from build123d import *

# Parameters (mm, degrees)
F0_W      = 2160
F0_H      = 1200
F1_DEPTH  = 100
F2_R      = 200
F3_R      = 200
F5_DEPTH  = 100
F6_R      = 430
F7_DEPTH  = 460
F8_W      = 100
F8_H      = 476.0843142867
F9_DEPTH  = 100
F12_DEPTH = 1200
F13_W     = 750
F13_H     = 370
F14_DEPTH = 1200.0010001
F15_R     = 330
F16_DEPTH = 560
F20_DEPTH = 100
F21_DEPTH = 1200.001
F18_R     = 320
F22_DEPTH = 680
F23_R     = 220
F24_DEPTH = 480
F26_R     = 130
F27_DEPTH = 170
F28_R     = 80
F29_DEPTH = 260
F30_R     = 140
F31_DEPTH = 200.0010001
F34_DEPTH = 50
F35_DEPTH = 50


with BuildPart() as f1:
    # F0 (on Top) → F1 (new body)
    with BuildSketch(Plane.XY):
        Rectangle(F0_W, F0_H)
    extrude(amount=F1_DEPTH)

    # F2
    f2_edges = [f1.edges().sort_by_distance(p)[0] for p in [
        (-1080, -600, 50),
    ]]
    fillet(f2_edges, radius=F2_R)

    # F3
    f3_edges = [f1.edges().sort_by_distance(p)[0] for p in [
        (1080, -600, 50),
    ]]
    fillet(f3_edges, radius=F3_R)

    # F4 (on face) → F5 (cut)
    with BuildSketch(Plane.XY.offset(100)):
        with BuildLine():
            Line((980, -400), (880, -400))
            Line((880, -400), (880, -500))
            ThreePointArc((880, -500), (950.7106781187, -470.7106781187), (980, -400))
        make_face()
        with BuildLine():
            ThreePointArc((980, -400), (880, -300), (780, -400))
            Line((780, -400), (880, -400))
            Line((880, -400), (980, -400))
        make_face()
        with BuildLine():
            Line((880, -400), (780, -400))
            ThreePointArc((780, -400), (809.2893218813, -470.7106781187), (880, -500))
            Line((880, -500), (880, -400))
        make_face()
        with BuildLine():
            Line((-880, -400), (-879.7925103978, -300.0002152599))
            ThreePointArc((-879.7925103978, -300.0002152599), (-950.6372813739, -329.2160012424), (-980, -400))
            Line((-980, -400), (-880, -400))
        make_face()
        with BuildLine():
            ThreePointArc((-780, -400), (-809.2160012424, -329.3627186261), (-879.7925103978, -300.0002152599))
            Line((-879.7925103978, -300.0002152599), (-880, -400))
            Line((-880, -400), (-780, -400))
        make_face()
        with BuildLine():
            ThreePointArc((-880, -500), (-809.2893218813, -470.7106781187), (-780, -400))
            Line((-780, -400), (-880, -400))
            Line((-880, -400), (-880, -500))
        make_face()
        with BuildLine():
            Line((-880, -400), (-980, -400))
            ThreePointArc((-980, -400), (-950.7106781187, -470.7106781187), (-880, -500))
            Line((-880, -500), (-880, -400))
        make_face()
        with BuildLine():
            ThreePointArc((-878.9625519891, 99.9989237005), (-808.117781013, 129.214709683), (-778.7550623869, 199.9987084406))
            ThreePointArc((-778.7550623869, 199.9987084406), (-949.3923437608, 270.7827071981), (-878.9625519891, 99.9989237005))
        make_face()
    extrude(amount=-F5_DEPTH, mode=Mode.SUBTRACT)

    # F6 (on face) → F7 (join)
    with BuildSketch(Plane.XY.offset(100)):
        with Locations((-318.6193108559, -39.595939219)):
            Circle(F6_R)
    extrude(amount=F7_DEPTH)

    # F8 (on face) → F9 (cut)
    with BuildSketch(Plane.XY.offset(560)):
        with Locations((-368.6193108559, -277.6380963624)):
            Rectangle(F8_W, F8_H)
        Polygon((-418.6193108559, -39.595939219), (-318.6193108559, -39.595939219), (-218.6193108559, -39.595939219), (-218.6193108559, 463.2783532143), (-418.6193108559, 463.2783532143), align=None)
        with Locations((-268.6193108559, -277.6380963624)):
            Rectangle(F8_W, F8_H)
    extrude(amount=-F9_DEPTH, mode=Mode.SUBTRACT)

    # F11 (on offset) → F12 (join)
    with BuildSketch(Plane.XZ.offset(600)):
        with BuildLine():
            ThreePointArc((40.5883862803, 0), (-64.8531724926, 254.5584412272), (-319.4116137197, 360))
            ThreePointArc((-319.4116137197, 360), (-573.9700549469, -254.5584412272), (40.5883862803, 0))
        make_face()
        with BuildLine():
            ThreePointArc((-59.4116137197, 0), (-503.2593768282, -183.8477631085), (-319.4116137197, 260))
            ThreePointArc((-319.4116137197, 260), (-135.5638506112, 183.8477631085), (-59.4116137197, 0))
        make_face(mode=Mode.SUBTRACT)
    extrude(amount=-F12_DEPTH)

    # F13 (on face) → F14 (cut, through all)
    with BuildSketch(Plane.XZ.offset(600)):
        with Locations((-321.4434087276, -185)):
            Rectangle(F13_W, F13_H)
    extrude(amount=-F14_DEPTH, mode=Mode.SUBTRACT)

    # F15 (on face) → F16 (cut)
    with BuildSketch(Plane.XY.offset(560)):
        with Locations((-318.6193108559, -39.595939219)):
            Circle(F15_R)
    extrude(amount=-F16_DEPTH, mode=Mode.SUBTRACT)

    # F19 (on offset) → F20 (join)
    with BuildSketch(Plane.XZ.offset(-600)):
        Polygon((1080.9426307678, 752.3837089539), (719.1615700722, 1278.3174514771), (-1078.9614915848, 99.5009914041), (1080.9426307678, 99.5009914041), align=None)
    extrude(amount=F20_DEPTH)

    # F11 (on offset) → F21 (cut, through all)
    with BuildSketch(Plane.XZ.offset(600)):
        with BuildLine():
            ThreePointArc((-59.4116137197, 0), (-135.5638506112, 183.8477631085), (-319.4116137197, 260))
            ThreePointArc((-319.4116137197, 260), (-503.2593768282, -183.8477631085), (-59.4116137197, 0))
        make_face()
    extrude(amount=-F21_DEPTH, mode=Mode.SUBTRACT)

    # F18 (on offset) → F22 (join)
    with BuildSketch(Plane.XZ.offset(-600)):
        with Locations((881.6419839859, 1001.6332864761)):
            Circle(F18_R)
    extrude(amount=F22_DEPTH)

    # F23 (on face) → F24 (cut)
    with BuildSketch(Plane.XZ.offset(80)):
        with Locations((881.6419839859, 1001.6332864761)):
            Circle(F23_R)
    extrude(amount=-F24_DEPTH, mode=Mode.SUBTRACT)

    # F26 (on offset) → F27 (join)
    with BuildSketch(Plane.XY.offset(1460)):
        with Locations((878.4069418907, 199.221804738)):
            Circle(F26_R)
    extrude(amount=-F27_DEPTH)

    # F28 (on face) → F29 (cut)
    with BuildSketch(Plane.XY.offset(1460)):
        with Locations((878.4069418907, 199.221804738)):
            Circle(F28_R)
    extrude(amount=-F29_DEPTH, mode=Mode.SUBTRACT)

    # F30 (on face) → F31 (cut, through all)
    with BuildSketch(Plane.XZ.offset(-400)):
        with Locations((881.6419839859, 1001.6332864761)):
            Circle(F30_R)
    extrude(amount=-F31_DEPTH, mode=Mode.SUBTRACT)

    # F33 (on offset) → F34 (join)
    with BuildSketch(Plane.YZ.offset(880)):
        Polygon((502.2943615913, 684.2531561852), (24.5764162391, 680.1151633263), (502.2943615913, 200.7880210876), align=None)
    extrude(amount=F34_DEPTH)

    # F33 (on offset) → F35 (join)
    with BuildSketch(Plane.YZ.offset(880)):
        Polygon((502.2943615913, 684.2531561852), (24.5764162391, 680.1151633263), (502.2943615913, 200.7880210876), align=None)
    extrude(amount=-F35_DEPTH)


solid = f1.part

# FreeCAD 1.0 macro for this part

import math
import FreeCAD as App
import Part
import Sketcher
from FreeCAD import Vector
Q = App.Units.Quantity


def edges_at(feature, points):
    """Names of the edges that pass closest to the given points."""
    edges = feature.Shape.Edges
    near = lambda p: min(range(len(edges)), key=lambda i: edges[i].distToShape(Part.Vertex(*p))[0])
    return sorted({f"Edge{near(p) + 1}" for p in points})


def add_polygon(sketch, points):
    """Adds a closed chain of lines whose ends are joined by coincident constraints."""
    first, n = sketch.GeometryCount, len(points)
    for a, b in zip(points, points[1:] + points[:1]):
        sketch.addGeometry(Part.LineSegment(App.Vector(*a, 0), App.Vector(*b, 0)), False)
    for i in range(n):
        sketch.addConstraint(Sketcher.Constraint("Coincident", first + i, 2, first + (i + 1) % n, 1))

doc = App.newDocument("Part")
body = doc.addObject("PartDesign::Body", "Body")

# Sketch on XY plane
sketch1 = doc.addObject("Sketcher::SketchObject", "Sketch")
body.addObject(sketch1)
sketch1.AttachmentSupport = (doc.XY_Plane, [""])
sketch1.MapMode = "FlatFace"
add_polygon(sketch1, [(-1080, 600), (-1080, -600), (1080, -600), (1080, 600)])  # lines 0-3
sketch1.addConstraint(Sketcher.Constraint("Vertical", 0))
sketch1.addConstraint(Sketcher.Constraint("Horizontal", 1))
sketch1.addConstraint(Sketcher.Constraint("Vertical", 2))
sketch1.addConstraint(Sketcher.Constraint("Horizontal", 3))
sketch1.addConstraint(Sketcher.Constraint("Symmetric", 0, 2, 2, 2, -1, 1))
sketch1.addConstraint(Sketcher.Constraint("DistanceX", 1, 1, 1, 2, Q("2160 mm")))
sketch1.addConstraint(Sketcher.Constraint("DistanceY", 0, 2, 0, 1, Q("1200 mm")))
pad1 = doc.addObject("PartDesign::Pad", "Pad")
body.addObject(pad1)
pad1.Profile = sketch1
pad1.Length = 100
doc.recompute()

fillet = doc.addObject("PartDesign::Fillet", "Fillet")
body.addObject(fillet)
fillet.Base = (pad1, edges_at(pad1, [(-1080, -600, 50)]))
fillet.Radius = 200
doc.recompute()

fillet2 = doc.addObject("PartDesign::Fillet", "Fillet001")
body.addObject(fillet2)
fillet2.Base = (fillet, edges_at(fillet, [(1080, -600, 50)]))
fillet2.Radius = 200

# Sketch on XY plane
sketch2 = doc.addObject("Sketcher::SketchObject", "Sketch001")
body.addObject(sketch2)
sketch2.AttachmentSupport = (doc.XY_Plane, [""])
sketch2.MapMode = "FlatFace"
sketch2.AttachmentOffset = App.Placement(Vector(0, 0, 100), App.Rotation())
sketch2.addGeometry(Part.ArcOfCircle(Part.Circle(Vector(880, -400, 0), Vector(0, 0, 1), 100), math.radians(-90), math.radians(0)), False)
sketch2.addGeometry(Part.ArcOfCircle(Part.Circle(Vector(880, -400, 0), Vector(0, 0, 1), 100), math.radians(0), math.radians(180)), False)
sketch2.addGeometry(Part.ArcOfCircle(Part.Circle(Vector(880, -400, 0), Vector(0, 0, 1), 100), math.radians(180), math.radians(270)), False)
sketch2.addGeometry(Part.ArcOfCircle(Part.Circle(Vector(-880, -400, 0), Vector(0, 0, 1), 100), math.radians(90), math.radians(180)), False)
sketch2.addGeometry(Part.ArcOfCircle(Part.Circle(Vector(-880, -400, 0), Vector(0, 0, 1), 100), math.radians(180), math.radians(270)), False)
sketch2.addGeometry(Part.ArcOfCircle(Part.Circle(Vector(-880, -400, 0), Vector(0, 0, 1), 100), math.radians(-90), math.radians(0)), False)
sketch2.addGeometry(Part.ArcOfCircle(Part.Circle(Vector(-880, -400, 0), Vector(0, 0, 1), 100), math.radians(0), math.radians(90)), False)
sketch2.addGeometry(Part.ArcOfCircle(Part.Circle(Vector(-879, 200, 0), Vector(0, 0, 1), 100), math.radians(-90), math.radians(0)), False)
sketch2.addGeometry(Part.ArcOfCircle(Part.Circle(Vector(-879, 200, 0), Vector(0, 0, 1), 100), math.radians(0), math.radians(270)), False)
sketch2.addConstraint(Sketcher.Constraint("Tangent", 0, 2, 1, 1))
sketch2.addConstraint(Sketcher.Constraint("Tangent", 1, 2, 2, 1))
sketch2.addConstraint(Sketcher.Constraint("Tangent", 2, 2, 0, 1))
sketch2.addConstraint(Sketcher.Constraint("Tangent", 3, 2, 4, 1))
sketch2.addConstraint(Sketcher.Constraint("Tangent", 4, 2, 5, 1))
sketch2.addConstraint(Sketcher.Constraint("Tangent", 5, 2, 6, 1))
sketch2.addConstraint(Sketcher.Constraint("Tangent", 6, 2, 3, 1))
sketch2.addConstraint(Sketcher.Constraint("Tangent", 7, 1, 8, 2))
sketch2.addConstraint(Sketcher.Constraint("Coincident", 8, 1, 7, 2))
sketch2.addConstraint(Sketcher.Constraint("Equal", 2, 3))
sketch2.addConstraint(Sketcher.Constraint("Equal", 3, 4))
sketch2.addConstraint(Sketcher.Constraint("Equal", 6, 7))
sketch2.addConstraint(Sketcher.Constraint("Symmetric", 0, 3, 3, 3, -2))
sketch2.addConstraint(Sketcher.Constraint("Horizontal", 6, 3, 0, 2))
sketch2.addConstraint(Sketcher.Constraint("Horizontal", 0, 2, 1, 2))
sketch2.addConstraint(Sketcher.Constraint("Horizontal", 1, 2, 3, 2))
sketch2.addConstraint(Sketcher.Constraint("Horizontal", 3, 2, 5, 2))
sketch2.addConstraint(Sketcher.Constraint("Horizontal", 7, 3, 8, 1))
sketch2.addConstraint(Sketcher.Constraint("Vertical", 1, 3, 2, 2))
sketch2.addConstraint(Sketcher.Constraint("Vertical", 6, 3, 4, 2))
sketch2.addConstraint(Sketcher.Constraint("Radius", 0, Q("100 mm")))
sketch2.addConstraint(Sketcher.Constraint("DistanceX", -1, 1, 0, 3, Q("880 mm")))
sketch2.addConstraint(Sketcher.Constraint("DistanceY", 0, 3, -1, 1, Q("400 mm")))
sketch2.addConstraint(Sketcher.Constraint("DistanceY", -1, 1, 7, 3, Q("199.998708 mm")))
sketch2.addConstraint(Sketcher.Constraint("DistanceX", 6, 2, -1, 1, Q("879.79251 mm")))
sketch2.addConstraint(Sketcher.Constraint("DistanceX", 7, 1, -1, 1, Q("878.962552 mm")))
sketch2.addConstraint(Sketcher.Constraint("DistanceX", 7, 1, 7, 3, Q("0.20749 mm")))
pocket1 = doc.addObject("PartDesign::Pocket", "Pocket")
body.addObject(pocket1)
pocket1.Profile = sketch2
pocket1.Length = 100

# Sketch on XY plane
sketch3 = doc.addObject("Sketcher::SketchObject", "Sketch002")
body.addObject(sketch3)
sketch3.AttachmentSupport = (doc.XY_Plane, [""])
sketch3.MapMode = "FlatFace"
sketch3.AttachmentOffset = App.Placement(Vector(0, 0, 100), App.Rotation())
sketch3.addGeometry(Part.Circle(Vector(-319, -40, 0), Vector(0, 0, 1), 430), False)
sketch3.addConstraint(Sketcher.Constraint("Diameter", 0, Q("860 mm")))
sketch3.addConstraint(Sketcher.Constraint("DistanceX", 0, 3, -1, 1, Q("318.619311 mm")))
sketch3.addConstraint(Sketcher.Constraint("DistanceY", 0, 3, -1, 1, Q("39.595939 mm")))
pad2 = doc.addObject("PartDesign::Pad", "Pad001")
body.addObject(pad2)
pad2.Profile = sketch3
pad2.Length = 460

# Sketch on XY plane
sketch4 = doc.addObject("Sketcher::SketchObject", "Sketch003")
body.addObject(sketch4)
sketch4.AttachmentSupport = (doc.XY_Plane, [""])
sketch4.MapMode = "FlatFace"
sketch4.AttachmentOffset = App.Placement(Vector(0, 0, 560), App.Rotation())
add_polygon(sketch4, [(-419, -516), (-219, -516), (-219, 463), (-419, 463)])  # lines 0-3
sketch4.addConstraint(Sketcher.Constraint("Horizontal", 0))
sketch4.addConstraint(Sketcher.Constraint("Vertical", 1))
sketch4.addConstraint(Sketcher.Constraint("Horizontal", 2))
sketch4.addConstraint(Sketcher.Constraint("Vertical", 3))
sketch4.addConstraint(Sketcher.Constraint("DistanceX", 0, 1, 0, 2, Q("200 mm")))
sketch4.addConstraint(Sketcher.Constraint("DistanceY", 1, 1, 1, 2, Q("978.958607 mm")))
sketch4.addConstraint(Sketcher.Constraint("DistanceX", 0, 2, -1, 1, Q("218.619311 mm")))
sketch4.addConstraint(Sketcher.Constraint("DistanceY", 0, 2, -1, 1, Q("515.680254 mm")))
pocket2 = doc.addObject("PartDesign::Pocket", "Pocket001")
body.addObject(pocket2)
pocket2.Profile = sketch4
pocket2.Length = 100

# Sketch on XZ plane
sketch5 = doc.addObject("Sketcher::SketchObject", "Sketch004")
body.addObject(sketch5)
sketch5.AttachmentSupport = (doc.XZ_Plane, [""])
sketch5.MapMode = "FlatFace"
sketch5.AttachmentOffset = App.Placement(Vector(0, 0, 600), App.Rotation())
sketch5.addGeometry(Part.Circle(Vector(-319, 0, 0), Vector(0, 0, 1), 360), False)
sketch5.addGeometry(Part.Circle(Vector(-319, 0, 0), Vector(0, 0, 1), 260), False)
sketch5.addConstraint(Sketcher.Constraint("Coincident", 1, 3, 0, 3))
sketch5.addConstraint(Sketcher.Constraint("PointOnObject", 0, 3, -1))
sketch5.addConstraint(Sketcher.Constraint("Diameter", 0, Q("720 mm")))
sketch5.addConstraint(Sketcher.Constraint("Diameter", 1, Q("520 mm")))
sketch5.addConstraint(Sketcher.Constraint("DistanceX", 0, 3, -1, 1, Q("319.411614 mm")))
pad3 = doc.addObject("PartDesign::Pad", "Pad002")
body.addObject(pad3)
pad3.Profile = sketch5
pad3.Length = 1200
pad3.Reversed = True

# Sketch on XZ plane
sketch6 = doc.addObject("Sketcher::SketchObject", "Sketch005")
body.addObject(sketch6)
sketch6.AttachmentSupport = (doc.XZ_Plane, [""])
sketch6.MapMode = "FlatFace"
sketch6.AttachmentOffset = App.Placement(Vector(0, 0, 600), App.Rotation())
add_polygon(sketch6, [(-696, 0), (-696, -370), (54, -370), (54, 0)])  # lines 0-3
sketch6.addConstraint(Sketcher.Constraint("Vertical", 0))
sketch6.addConstraint(Sketcher.Constraint("Horizontal", 1))
sketch6.addConstraint(Sketcher.Constraint("Vertical", 2))
sketch6.addConstraint(Sketcher.Constraint("Horizontal", 3))
sketch6.addConstraint(Sketcher.Constraint("PointOnObject", 2, 2, -1))
sketch6.addConstraint(Sketcher.Constraint("DistanceX", 1, 1, 1, 2, Q("750 mm")))
sketch6.addConstraint(Sketcher.Constraint("DistanceY", 0, 2, 0, 1, Q("370 mm")))
sketch6.addConstraint(Sketcher.Constraint("DistanceX", 0, 2, -1, 1, Q("696.443409 mm")))
pocket3 = doc.addObject("PartDesign::Pocket", "Pocket002")
body.addObject(pocket3)
pocket3.Profile = sketch6
pocket3.Type = "ThroughAll"

# Sketch on XY plane
sketch7 = doc.addObject("Sketcher::SketchObject", "Sketch006")
body.addObject(sketch7)
sketch7.AttachmentSupport = (doc.XY_Plane, [""])
sketch7.MapMode = "FlatFace"
sketch7.AttachmentOffset = App.Placement(Vector(0, 0, 560), App.Rotation())
sketch7.addGeometry(Part.Circle(Vector(-319, -40, 0), Vector(0, 0, 1), 330), False)
sketch7.addConstraint(Sketcher.Constraint("Diameter", 0, Q("660 mm")))
sketch7.addConstraint(Sketcher.Constraint("DistanceX", 0, 3, -1, 1, Q("318.619311 mm")))
sketch7.addConstraint(Sketcher.Constraint("DistanceY", 0, 3, -1, 1, Q("39.595939 mm")))
pocket4 = doc.addObject("PartDesign::Pocket", "Pocket003")
body.addObject(pocket4)
pocket4.Profile = sketch7
pocket4.Length = 560

# Sketch on XZ plane
sketch8 = doc.addObject("Sketcher::SketchObject", "Sketch007")
body.addObject(sketch8)
sketch8.AttachmentSupport = (doc.XZ_Plane, [""])
sketch8.MapMode = "FlatFace"
sketch8.AttachmentOffset = App.Placement(Vector(0, 0, -600), App.Rotation())
add_polygon(sketch8, [(1081, 752), (719, 1278), (-1079, 100), (1081, 100)])  # lines 0-3
sketch8.addConstraint(Sketcher.Constraint("Horizontal", 2))
sketch8.addConstraint(Sketcher.Constraint("Vertical", 3))
sketch8.addConstraint(Sketcher.Constraint("Distance", 1, Q("2150.082508 mm")))
sketch8.addConstraint(Sketcher.Constraint("DistanceX", 2, 1, 2, 2, Q("2159.904122 mm")))
sketch8.addConstraint(Sketcher.Constraint("DistanceY", 3, 1, 3, 2, Q("652.882718 mm")))
sketch8.addConstraint(Sketcher.Constraint("DistanceX", -1, 1, 0, 2, Q("719.16157 mm")))
sketch8.addConstraint(Sketcher.Constraint("DistanceY", -1, 1, 0, 2, Q("1278.317451 mm")))
sketch8.addConstraint(Sketcher.Constraint("DistanceX", 1, 2, -1, 1, Q("1078.961492 mm")))
pad4 = doc.addObject("PartDesign::Pad", "Pad003")
body.addObject(pad4)
pad4.Profile = sketch8
pad4.Length = 100

# Sketch on XZ plane
sketch9 = doc.addObject("Sketcher::SketchObject", "Sketch008")
body.addObject(sketch9)
sketch9.AttachmentSupport = (doc.XZ_Plane, [""])
sketch9.MapMode = "FlatFace"
sketch9.AttachmentOffset = App.Placement(Vector(0, 0, 600), App.Rotation())
sketch9.addGeometry(Part.Circle(Vector(-319, 0, 0), Vector(0, 0, 1), 260), False)
sketch9.addConstraint(Sketcher.Constraint("PointOnObject", 0, 3, -1))
sketch9.addConstraint(Sketcher.Constraint("Diameter", 0, Q("520 mm")))
sketch9.addConstraint(Sketcher.Constraint("DistanceX", 0, 3, -1, 1, Q("319.411614 mm")))
pocket5 = doc.addObject("PartDesign::Pocket", "Pocket004")
body.addObject(pocket5)
pocket5.Profile = sketch9
pocket5.Type = "ThroughAll"

# Sketch on XZ plane
sketch10 = doc.addObject("Sketcher::SketchObject", "Sketch009")
body.addObject(sketch10)
sketch10.AttachmentSupport = (doc.XZ_Plane, [""])
sketch10.MapMode = "FlatFace"
sketch10.AttachmentOffset = App.Placement(Vector(0, 0, -600), App.Rotation())
sketch10.addGeometry(Part.Circle(Vector(882, 1002, 0), Vector(0, 0, 1), 320), False)
sketch10.addConstraint(Sketcher.Constraint("Diameter", 0, Q("640 mm")))
sketch10.addConstraint(Sketcher.Constraint("DistanceX", -1, 1, 0, 3, Q("881.641984 mm")))
sketch10.addConstraint(Sketcher.Constraint("DistanceY", -1, 1, 0, 3, Q("1001.633286 mm")))
pad5 = doc.addObject("PartDesign::Pad", "Pad004")
body.addObject(pad5)
pad5.Profile = sketch10
pad5.Length = 680

# Sketch on XZ plane
sketch11 = doc.addObject("Sketcher::SketchObject", "Sketch010")
body.addObject(sketch11)
sketch11.AttachmentSupport = (doc.XZ_Plane, [""])
sketch11.MapMode = "FlatFace"
sketch11.AttachmentOffset = App.Placement(Vector(0, 0, 80), App.Rotation())
sketch11.addGeometry(Part.Circle(Vector(882, 1002, 0), Vector(0, 0, 1), 220), False)
sketch11.addConstraint(Sketcher.Constraint("Diameter", 0, Q("440 mm")))
sketch11.addConstraint(Sketcher.Constraint("DistanceX", -1, 1, 0, 3, Q("881.641984 mm")))
sketch11.addConstraint(Sketcher.Constraint("DistanceY", -1, 1, 0, 3, Q("1001.633286 mm")))
pocket6 = doc.addObject("PartDesign::Pocket", "Pocket005")
body.addObject(pocket6)
pocket6.Profile = sketch11
pocket6.Length = 480

# Sketch on XY plane
sketch12 = doc.addObject("Sketcher::SketchObject", "Sketch011")
body.addObject(sketch12)
sketch12.AttachmentSupport = (doc.XY_Plane, [""])
sketch12.MapMode = "FlatFace"
sketch12.AttachmentOffset = App.Placement(Vector(0, 0, 1460), App.Rotation())
sketch12.addGeometry(Part.Circle(Vector(878, 199, 0), Vector(0, 0, 1), 130), False)
sketch12.addConstraint(Sketcher.Constraint("Diameter", 0, Q("260 mm")))
sketch12.addConstraint(Sketcher.Constraint("DistanceX", -1, 1, 0, 3, Q("878.406942 mm")))
sketch12.addConstraint(Sketcher.Constraint("DistanceY", -1, 1, 0, 3, Q("199.221805 mm")))
pad6 = doc.addObject("PartDesign::Pad", "Pad005")
body.addObject(pad6)
pad6.Profile = sketch12
pad6.Length = 170
pad6.Reversed = True

# Sketch on XY plane
sketch13 = doc.addObject("Sketcher::SketchObject", "Sketch012")
body.addObject(sketch13)
sketch13.AttachmentSupport = (doc.XY_Plane, [""])
sketch13.MapMode = "FlatFace"
sketch13.AttachmentOffset = App.Placement(Vector(0, 0, 1460), App.Rotation())
sketch13.addGeometry(Part.Circle(Vector(878, 199, 0), Vector(0, 0, 1), 80), False)
sketch13.addConstraint(Sketcher.Constraint("Diameter", 0, Q("160 mm")))
sketch13.addConstraint(Sketcher.Constraint("DistanceX", -1, 1, 0, 3, Q("878.406942 mm")))
sketch13.addConstraint(Sketcher.Constraint("DistanceY", -1, 1, 0, 3, Q("199.221805 mm")))
pocket7 = doc.addObject("PartDesign::Pocket", "Pocket006")
body.addObject(pocket7)
pocket7.Profile = sketch13
pocket7.Length = 260

# Sketch on XZ plane
sketch14 = doc.addObject("Sketcher::SketchObject", "Sketch013")
body.addObject(sketch14)
sketch14.AttachmentSupport = (doc.XZ_Plane, [""])
sketch14.MapMode = "FlatFace"
sketch14.AttachmentOffset = App.Placement(Vector(0, 0, -400), App.Rotation())
sketch14.addGeometry(Part.Circle(Vector(882, 1002, 0), Vector(0, 0, 1), 140), False)
sketch14.addConstraint(Sketcher.Constraint("Diameter", 0, Q("280 mm")))
sketch14.addConstraint(Sketcher.Constraint("DistanceX", -1, 1, 0, 3, Q("881.641984 mm")))
sketch14.addConstraint(Sketcher.Constraint("DistanceY", -1, 1, 0, 3, Q("1001.633286 mm")))
pocket8 = doc.addObject("PartDesign::Pocket", "Pocket007")
body.addObject(pocket8)
pocket8.Profile = sketch14
pocket8.Type = "ThroughAll"

# Sketch on YZ plane
sketch15 = doc.addObject("Sketcher::SketchObject", "Sketch014")
body.addObject(sketch15)
sketch15.AttachmentSupport = (doc.YZ_Plane, [""])
sketch15.MapMode = "FlatFace"
sketch15.AttachmentOffset = App.Placement(Vector(0, 0, 880), App.Rotation())
add_polygon(sketch15, [(502, 684), (25, 680), (502, 201)])  # lines 0-2
sketch15.addConstraint(Sketcher.Constraint("Vertical", 2))
sketch15.addConstraint(Sketcher.Constraint("DistanceY", 2, 1, 2, 2, Q("483.465135 mm")))
sketch15.addConstraint(Sketcher.Constraint("DistanceX", -1, 1, 1, 2, Q("502.294362 mm")))
sketch15.addConstraint(Sketcher.Constraint("DistanceY", -1, 1, 1, 2, Q("200.788021 mm")))
sketch15.addConstraint(Sketcher.Constraint("Distance", 0, Q("477.735867 mm")))
sketch15.addConstraint(Sketcher.Constraint("Distance", 1, Q("676.734028 mm")))
pad7 = doc.addObject("PartDesign::Pad", "Pad006")
body.addObject(pad7)
pad7.Profile = sketch15
pad7.Length = 50

# Sketch on YZ plane
sketch16 = doc.addObject("Sketcher::SketchObject", "Sketch015")
body.addObject(sketch16)
sketch16.AttachmentSupport = (doc.YZ_Plane, [""])
sketch16.MapMode = "FlatFace"
sketch16.AttachmentOffset = App.Placement(Vector(0, 0, 880), App.Rotation())
add_polygon(sketch16, [(502, 684), (25, 680), (502, 201)])  # lines 0-2
sketch16.addConstraint(Sketcher.Constraint("Vertical", 2))
sketch16.addConstraint(Sketcher.Constraint("DistanceY", 2, 1, 2, 2, Q("483.465135 mm")))
sketch16.addConstraint(Sketcher.Constraint("DistanceX", -1, 1, 1, 2, Q("502.294362 mm")))
sketch16.addConstraint(Sketcher.Constraint("DistanceY", -1, 1, 1, 2, Q("200.788021 mm")))
sketch16.addConstraint(Sketcher.Constraint("Distance", 0, Q("477.735867 mm")))
sketch16.addConstraint(Sketcher.Constraint("Distance", 1, Q("676.734028 mm")))
pad8 = doc.addObject("PartDesign::Pad", "Pad007")
body.addObject(pad8)
pad8.Profile = sketch16
pad8.Length = 50
pad8.Reversed = True

doc.recompute()
